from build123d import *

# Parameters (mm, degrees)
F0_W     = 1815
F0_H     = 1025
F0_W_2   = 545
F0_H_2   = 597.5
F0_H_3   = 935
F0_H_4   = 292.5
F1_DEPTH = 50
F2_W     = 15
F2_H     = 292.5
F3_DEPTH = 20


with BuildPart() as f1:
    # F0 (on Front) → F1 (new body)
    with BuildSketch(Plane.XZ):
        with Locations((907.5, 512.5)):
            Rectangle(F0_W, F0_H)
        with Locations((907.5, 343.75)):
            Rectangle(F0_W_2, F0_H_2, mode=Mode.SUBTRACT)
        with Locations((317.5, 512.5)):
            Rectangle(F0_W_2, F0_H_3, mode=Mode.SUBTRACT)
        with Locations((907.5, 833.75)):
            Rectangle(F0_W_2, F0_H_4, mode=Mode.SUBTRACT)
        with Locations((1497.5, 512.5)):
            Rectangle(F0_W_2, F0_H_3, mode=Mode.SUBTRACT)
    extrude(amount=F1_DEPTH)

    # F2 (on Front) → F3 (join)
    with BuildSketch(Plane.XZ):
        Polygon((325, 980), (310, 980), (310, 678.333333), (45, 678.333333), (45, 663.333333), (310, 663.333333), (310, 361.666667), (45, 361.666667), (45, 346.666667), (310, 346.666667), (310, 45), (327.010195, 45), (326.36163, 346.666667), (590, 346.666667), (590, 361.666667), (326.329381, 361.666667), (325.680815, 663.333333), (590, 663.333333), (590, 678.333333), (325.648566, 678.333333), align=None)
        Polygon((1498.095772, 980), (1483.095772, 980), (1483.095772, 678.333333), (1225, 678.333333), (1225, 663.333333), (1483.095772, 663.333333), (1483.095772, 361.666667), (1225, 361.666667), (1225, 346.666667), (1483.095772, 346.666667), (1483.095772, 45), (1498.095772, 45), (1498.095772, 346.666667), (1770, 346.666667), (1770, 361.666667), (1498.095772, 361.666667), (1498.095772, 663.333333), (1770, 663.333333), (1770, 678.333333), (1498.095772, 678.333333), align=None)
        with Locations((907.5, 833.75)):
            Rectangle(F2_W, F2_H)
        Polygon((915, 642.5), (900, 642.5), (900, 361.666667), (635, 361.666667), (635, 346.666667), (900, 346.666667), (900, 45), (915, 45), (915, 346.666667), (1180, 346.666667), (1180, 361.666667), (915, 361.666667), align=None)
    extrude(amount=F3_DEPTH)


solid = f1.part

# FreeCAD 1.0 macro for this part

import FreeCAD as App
import Part
import Sketcher

doc = App.newDocument("Part")
body = doc.addObject("PartDesign::Body", "Body")

# Sketch on XZ plane
sketch1 = body.newObject("Sketcher::SketchObject", "Sketch")
sketch1.AttachmentSupport = (doc.getObject("XZ_Plane"), [""])
sketch1.MapMode = "FlatFace"
sketch1.addGeometry([
    Part.LineSegment(App.Vector(0, 1025, 0), App.Vector(0, 0, 0)),  # 0
    Part.LineSegment(App.Vector(0, 0, 0), App.Vector(1815, 0, 0)),  # 1
    Part.LineSegment(App.Vector(1815, 0, 0), App.Vector(1815, 1025, 0)),  # 2
    Part.LineSegment(App.Vector(1815, 1025, 0), App.Vector(0, 1025, 0)),  # 3
    Part.LineSegment(App.Vector(1180, 45, 0), App.Vector(635, 45, 0)),  # 4
    Part.LineSegment(App.Vector(635, 45, 0), App.Vector(635, 642, 0)),  # 5
    Part.LineSegment(App.Vector(635, 642, 0), App.Vector(1180, 642, 0)),  # 6
    Part.LineSegment(App.Vector(1180, 642, 0), App.Vector(1180, 45, 0)),  # 7
    Part.LineSegment(App.Vector(590, 45, 0), App.Vector(45, 45, 0)),  # 8
    Part.LineSegment(App.Vector(45, 45, 0), App.Vector(45, 980, 0)),  # 9
    Part.LineSegment(App.Vector(45, 980, 0), App.Vector(590, 980, 0)),  # 10
    Part.LineSegment(App.Vector(590, 980, 0), App.Vector(590, 45, 0)),  # 11
    Part.LineSegment(App.Vector(1770, 45, 0), App.Vector(1225, 45, 0)),  # 12
    Part.LineSegment(App.Vector(1225, 45, 0), App.Vector(1225, 980, 0)),  # 13
    Part.LineSegment(App.Vector(1225, 980, 0), App.Vector(1770, 980, 0)),  # 14
    Part.LineSegment(App.Vector(1770, 980, 0), App.Vector(1770, 45, 0)),  # 15
    Part.LineSegment(App.Vector(1180, 688, 0), App.Vector(635, 688, 0)),  # 16
    Part.LineSegment(App.Vector(635, 688, 0), App.Vector(635, 980, 0)),  # 17
    Part.LineSegment(App.Vector(635, 980, 0), App.Vector(1180, 980, 0)),  # 18
    Part.LineSegment(App.Vector(1180, 980, 0), App.Vector(1180, 688, 0)),  # 19
], False)
sketch1.addConstraint([
    Sketcher.Constraint("Coincident", 0, 2, 1, 1),
    Sketcher.Constraint("Coincident", 1, 2, 2, 1),
    Sketcher.Constraint("Coincident", 2, 2, 3, 1),
    Sketcher.Constraint("Coincident", 3, 2, 0, 1),
    Sketcher.Constraint("Coincident", 4, 2, 5, 1),
    Sketcher.Constraint("Coincident", 5, 2, 6, 1),
    Sketcher.Constraint("Coincident", 6, 2, 7, 1),
    Sketcher.Constraint("Coincident", 7, 2, 4, 1),
    Sketcher.Constraint("Coincident", 8, 2, 9, 1),
    Sketcher.Constraint("Coincident", 9, 2, 10, 1),
    Sketcher.Constraint("Coincident", 10, 2, 11, 1),
    Sketcher.Constraint("Coincident", 11, 2, 8, 1),
    Sketcher.Constraint("Coincident", 12, 2, 13, 1),
    Sketcher.Constraint("Coincident", 13, 2, 14, 1),
    Sketcher.Constraint("Coincident", 14, 2, 15, 1),
    Sketcher.Constraint("Coincident", 15, 2, 12, 1),
    Sketcher.Constraint("Coincident", 16, 2, 17, 1),
    Sketcher.Constraint("Coincident", 17, 2, 18, 1),
    Sketcher.Constraint("Coincident", 18, 2, 19, 1),
    Sketcher.Constraint("Coincident", 19, 2, 16, 1),
    Sketcher.Constraint("Vertical", 0),
    Sketcher.Constraint("Horizontal", 1),
    Sketcher.Constraint("Vertical", 2),
    Sketcher.Constraint("Horizontal", 3),
    Sketcher.Constraint("Horizontal", 4),
    Sketcher.Constraint("Vertical", 5),
    Sketcher.Constraint("Horizontal", 6),
    Sketcher.Constraint("Vertical", 7),
    Sketcher.Constraint("Horizontal", 8),
    Sketcher.Constraint("Vertical", 9),
    Sketcher.Constraint("Horizontal", 10),
    Sketcher.Constraint("Vertical", 11),
    Sketcher.Constraint("Horizontal", 12),
    Sketcher.Constraint("Vertical", 13),
    Sketcher.Constraint("Horizontal", 14),
    Sketcher.Constraint("Vertical", 15),
    Sketcher.Constraint("Horizontal", 16),
    Sketcher.Constraint("Vertical", 17),
    Sketcher.Constraint("Horizontal", 18),
    Sketcher.Constraint("Vertical", 19),
    Sketcher.Constraint("Coincident", 0, 2, -1, 1),
    Sketcher.Constraint("Horizontal", 7, 2, 8, 2),
    Sketcher.Constraint("Horizontal", 11, 2, 12, 2),
    Sketcher.Constraint("Horizontal", 10, 2, 13, 2),
    Sketcher.Constraint("Horizontal", 14, 2, 17, 2),
    Sketcher.Constraint("Vertical", 5, 2, 16, 2),
    Sketcher.Constraint("Vertical", 7, 2, 18, 2),
    Sketcher.Constraint("Equal", 6, 8),
    Sketcher.Constraint("Equal", 10, 12),
    Sketcher.Constraint("DistanceX", 1, 1, 1, 2, 1815.0),
    Sketcher.Constraint("DistanceX", 4, 2, 4, 1, 545.0),
    Sketcher.Constraint("DistanceY", 0, 2, 0, 1, 1025.0),
    Sketcher.Constraint("DistanceY", 9, 1, 9, 2, 935.0),
    Sketcher.Constraint("DistanceY", 5, 1, 5, 2, 597.5),
    Sketcher.Constraint("DistanceY", 17, 1, 17, 2, 292.5),
    Sketcher.Constraint("DistanceX", -1, 1, 4, 2, 635.0),
    Sketcher.Constraint("DistanceY", -1, 1, 4, 2, 45.0),
    Sketcher.Constraint("DistanceX", -1, 1, 8, 2, 45.0),
    Sketcher.Constraint("DistanceX", -1, 1, 12, 2, 1225.0),
])
pad1 = body.newObject("PartDesign::Pad", "Pad")
pad1.Profile = sketch1
pad1.Length = 50

# Sketch on XZ plane
sketch2 = body.newObject("Sketcher::SketchObject", "Sketch001")
sketch2.AttachmentSupport = (doc.getObject("XZ_Plane"), [""])
sketch2.MapMode = "FlatFace"
sketch2.addGeometry([
    Part.LineSegment(App.Vector(325, 980, 0), App.Vector(310, 980, 0)),  # 0
    Part.LineSegment(App.Vector(310, 980, 0), App.Vector(310, 678, 0)),  # 1
    Part.LineSegment(App.Vector(310, 678, 0), App.Vector(45, 678, 0)),  # 2
    Part.LineSegment(App.Vector(45, 678, 0), App.Vector(45, 663, 0)),  # 3
    Part.LineSegment(App.Vector(45, 663, 0), App.Vector(310, 663, 0)),  # 4
    Part.LineSegment(App.Vector(310, 663, 0), App.Vector(310, 362, 0)),  # 5
    Part.LineSegment(App.Vector(310, 362, 0), App.Vector(45, 362, 0)),  # 6
    Part.LineSegment(App.Vector(45, 362, 0), App.Vector(45, 347, 0)),  # 7
    Part.LineSegment(App.Vector(45, 347, 0), App.Vector(310, 347, 0)),  # 8
    Part.LineSegment(App.Vector(310, 347, 0), App.Vector(310, 45, 0)),  # 9
    Part.LineSegment(App.Vector(310, 45, 0), App.Vector(327, 45, 0)),  # 10
    Part.LineSegment(App.Vector(327, 45, 0), App.Vector(326, 347, 0)),  # 11
    Part.LineSegment(App.Vector(326, 347, 0), App.Vector(590, 347, 0)),  # 12
    Part.LineSegment(App.Vector(590, 347, 0), App.Vector(590, 362, 0)),  # 13
    Part.LineSegment(App.Vector(590, 362, 0), App.Vector(326, 362, 0)),  # 14
    Part.LineSegment(App.Vector(326, 362, 0), App.Vector(326, 663, 0)),  # 15
    Part.LineSegment(App.Vector(326, 663, 0), App.Vector(590, 663, 0)),  # 16
    Part.LineSegment(App.Vector(590, 663, 0), App.Vector(590, 678, 0)),  # 17
    Part.LineSegment(App.Vector(590, 678, 0), App.Vector(326, 678, 0)),  # 18
    Part.LineSegment(App.Vector(326, 678, 0), App.Vector(325, 980, 0)),  # 19
    Part.LineSegment(App.Vector(1498, 980, 0), App.Vector(1483, 980, 0)),  # 20
    Part.LineSegment(App.Vector(1483, 980, 0), App.Vector(1483, 678, 0)),  # 21
    Part.LineSegment(App.Vector(1483, 678, 0), App.Vector(1225, 678, 0)),  # 22
    Part.LineSegment(App.Vector(1225, 678, 0), App.Vector(1225, 663, 0)),  # 23
    Part.LineSegment(App.Vector(1225, 663, 0), App.Vector(1483, 663, 0)),  # 24
    Part.LineSegment(App.Vector(1483, 663, 0), App.Vector(1483, 362, 0)),  # 25
    Part.LineSegment(App.Vector(1483, 362, 0), App.Vector(1225, 362, 0)),  # 26
    Part.LineSegment(App.Vector(1225, 362, 0), App.Vector(1225, 347, 0)),  # 27
    Part.LineSegment(App.Vector(1225, 347, 0), App.Vector(1483, 347, 0)),  # 28
    Part.LineSegment(App.Vector(1483, 347, 0), App.Vector(1483, 45, 0)),  # 29
    Part.LineSegment(App.Vector(1483, 45, 0), App.Vector(1498, 45, 0)),  # 30
    Part.LineSegment(App.Vector(1498, 45, 0), App.Vector(1498, 347, 0)),  # 31
    Part.LineSegment(App.Vector(1498, 347, 0), App.Vector(1770, 347, 0)),  # 32
    Part.LineSegment(App.Vector(1770, 347, 0), App.Vector(1770, 362, 0)),  # 33
    Part.LineSegment(App.Vector(1770, 362, 0), App.Vector(1498, 362, 0)),  # 34
    Part.LineSegment(App.Vector(1498, 362, 0), App.Vector(1498, 663, 0)),  # 35
    Part.LineSegment(App.Vector(1498, 663, 0), App.Vector(1770, 663, 0)),  # 36
    Part.LineSegment(App.Vector(1770, 663, 0), App.Vector(1770, 678, 0)),  # 37
    Part.LineSegment(App.Vector(1770, 678, 0), App.Vector(1498, 678, 0)),  # 38
    Part.LineSegment(App.Vector(1498, 678, 0), App.Vector(1498, 980, 0)),  # 39
    Part.LineSegment(App.Vector(900, 980, 0), App.Vector(900, 688, 0)),  # 40
    Part.LineSegment(App.Vector(900, 688, 0), App.Vector(915, 688, 0)),  # 41
    Part.LineSegment(App.Vector(915, 688, 0), App.Vector(915, 980, 0)),  # 42
    Part.LineSegment(App.Vector(915, 980, 0), App.Vector(900, 980, 0)),  # 43
    Part.LineSegment(App.Vector(915, 642, 0), App.Vector(900, 642, 0)),  # 44
    Part.LineSegment(App.Vector(900, 642, 0), App.Vector(900, 362, 0)),  # 45
    Part.LineSegment(App.Vector(900, 362, 0), App.Vector(635, 362, 0)),  # 46
    Part.LineSegment(App.Vector(635, 362, 0), App.Vector(635, 347, 0)),  # 47
    Part.LineSegment(App.Vector(635, 347, 0), App.Vector(900, 347, 0)),  # 48
    Part.LineSegment(App.Vector(900, 347, 0), App.Vector(900, 45, 0)),  # 49
    Part.LineSegment(App.Vector(900, 45, 0), App.Vector(915, 45, 0)),  # 50
    Part.LineSegment(App.Vector(915, 45, 0), App.Vector(915, 347, 0)),  # 51
    Part.LineSegment(App.Vector(915, 347, 0), App.Vector(1180, 347, 0)),  # 52
    Part.LineSegment(App.Vector(1180, 347, 0), App.Vector(1180, 362, 0)),  # 53
    Part.LineSegment(App.Vector(1180, 362, 0), App.Vector(915, 362, 0)),  # 54
    Part.LineSegment(App.Vector(915, 362, 0), App.Vector(915, 642, 0)),  # 55
], False)
sketch2.addConstraint([
    Sketcher.Constraint("Coincident", 0, 2, 1, 1),
    Sketcher.Constraint("Coincident", 1, 2, 2, 1),
    Sketcher.Constraint("Coincident", 2, 2, 3, 1),
    Sketcher.Constraint("Coincident", 3, 2, 4, 1),
    Sketcher.Constraint("Coincident", 4, 2, 5, 1),
    Sketcher.Constraint("Coincident", 5, 2, 6, 1),
    Sketcher.Constraint("Coincident", 6, 2, 7, 1),
    Sketcher.Constraint("Coincident", 7, 2, 8, 1),
    Sketcher.Constraint("Coincident", 8, 2, 9, 1),
    Sketcher.Constraint("Coincident", 9, 2, 10, 1),
    Sketcher.Constraint("Coincident", 10, 2, 11, 1),
    Sketcher.Constraint("Coincident", 11, 2, 12, 1),
    Sketcher.Constraint("Coincident", 12, 2, 13, 1),
    Sketcher.Constraint("Coincident", 13, 2, 14, 1),
    Sketcher.Constraint("Coincident", 14, 2, 15, 1),
    Sketcher.Constraint("Coincident", 15, 2, 16, 1),
    Sketcher.Constraint("Coincident", 16, 2, 17, 1),
    Sketcher.Constraint("Coincident", 17, 2, 18, 1),
    Sketcher.Constraint("Coincident", 18, 2, 19, 1),
    Sketcher.Constraint("Coincident", 19, 2, 0, 1),
    Sketcher.Constraint("Coincident", 20, 2, 21, 1),
    Sketcher.Constraint("Coincident", 21, 2, 22, 1),
    Sketcher.Constraint("Coincident", 22, 2, 23, 1),
    Sketcher.Constraint("Coincident", 23, 2, 24, 1),
    Sketcher.Constraint("Coincident", 24, 2, 25, 1),
    Sketcher.Constraint("Coincident", 25, 2, 26, 1),
    Sketcher.Constraint("Coincident", 26, 2, 27, 1),
    Sketcher.Constraint("Coincident", 27, 2, 28, 1),
    Sketcher.Constraint("Coincident", 28, 2, 29, 1),
    Sketcher.Constraint("Coincident", 29, 2, 30, 1),
    Sketcher.Constraint("Coincident", 30, 2, 31, 1),
    Sketcher.Constraint("Coincident", 31, 2, 32, 1),
    Sketcher.Constraint("Coincident", 32, 2, 33, 1),
    Sketcher.Constraint("Coincident", 33, 2, 34, 1),
    Sketcher.Constraint("Coincident", 34, 2, 35, 1),
    Sketcher.Constraint("Coincident", 35, 2, 36, 1),
    Sketcher.Constraint("Coincident", 36, 2, 37, 1),
    Sketcher.Constraint("Coincident", 37, 2, 38, 1),
    Sketcher.Constraint("Coincident", 38, 2, 39, 1),
    Sketcher.Constraint("Coincident", 39, 2, 20, 1),
    Sketcher.Constraint("Coincident", 40, 2, 41, 1),
    Sketcher.Constraint("Coincident", 41, 2, 42, 1),
    Sketcher.Constraint("Coincident", 42, 2, 43, 1),
    Sketcher.Constraint("Coincident", 43, 2, 40, 1),
    Sketcher.Constraint("Coincident", 44, 2, 45, 1),
    Sketcher.Constraint("Coincident", 45, 2, 46, 1),
    Sketcher.Constraint("Coincident", 46, 2, 47, 1),
    Sketcher.Constraint("Coincident", 47, 2, 48, 1),
    Sketcher.Constraint("Coincident", 48, 2, 49, 1),
    Sketcher.Constraint("Coincident", 49, 2, 50, 1),
    Sketcher.Constraint("Coincident", 50, 2, 51, 1),
    Sketcher.Constraint("Coincident", 51, 2, 52, 1),
    Sketcher.Constraint("Coincident", 52, 2, 53, 1),
    Sketcher.Constraint("Coincident", 53, 2, 54, 1),
    Sketcher.Constraint("Coincident", 54, 2, 55, 1),
    Sketcher.Constraint("Coincident", 55, 2, 44, 1),
    Sketcher.Constraint("Horizontal", 0),
    Sketcher.Constraint("Vertical", 1),
    Sketcher.Constraint("Horizontal", 2),
    Sketcher.Constraint("Vertical", 3),
    Sketcher.Constraint("Horizontal", 4),
    Sketcher.Constraint("Vertical", 5),
    Sketcher.Constraint("Horizontal", 6),
    Sketcher.Constraint("Vertical", 7),
    Sketcher.Constraint("Horizontal", 8),
    Sketcher.Constraint("Vertical", 9),
    Sketcher.Constraint("Horizontal", 10),
    Sketcher.Constraint("Horizontal", 12),
    Sketcher.Constraint("Vertical", 13),
    Sketcher.Constraint("Horizontal", 14),
    Sketcher.Constraint("Horizontal", 16),
    Sketcher.Constraint("Vertical", 17),
    Sketcher.Constraint("Horizontal", 18),
    Sketcher.Constraint("Horizontal", 20),
    Sketcher.Constraint("Vertical", 21),
    Sketcher.Constraint("Horizontal", 22),
    Sketcher.Constraint("Vertical", 23),
    Sketcher.Constraint("Horizontal", 24),
    Sketcher.Constraint("Vertical", 25),
    Sketcher.Constraint("Horizontal", 26),
    Sketcher.Constraint("Vertical", 27),
    Sketcher.Constraint("Horizontal", 28),
    Sketcher.Constraint("Vertical", 29),
    Sketcher.Constraint("Horizontal", 30),
    Sketcher.Constraint("Vertical", 31),
    Sketcher.Constraint("Horizontal", 32),
    Sketcher.Constraint("Vertical", 33),
    Sketcher.Constraint("Horizontal", 34),
    Sketcher.Constraint("Vertical", 35),
    Sketcher.Constraint("Horizontal", 36),
    Sketcher.Constraint("Vertical", 37),
    Sketcher.Constraint("Horizontal", 38),
    Sketcher.Constraint("Vertical", 39),
    Sketcher.Constraint("Vertical", 40),
    Sketcher.Constraint("Horizontal", 41),
    Sketcher.Constraint("Vertical", 42),
    Sketcher.Constraint("Horizontal", 43),
    Sketcher.Constraint("Horizontal", 44),
    Sketcher.Constraint("Vertical", 45),
    Sketcher.Constraint("Horizontal", 46),
    Sketcher.Constraint("Vertical", 47),
    Sketcher.Constraint("Horizontal", 48),
    Sketcher.Constraint("Vertical", 49),
    Sketcher.Constraint("Horizontal", 50),
    Sketcher.Constraint("Vertical", 51),
    Sketcher.Constraint("Horizontal", 52),
    Sketcher.Constraint("Vertical", 53),
    Sketcher.Constraint("Horizontal", 54),
    Sketcher.Constraint("Vertical", 55),
    Sketcher.Constraint("Parallel", 11, 15),
    Sketcher.Constraint("Parallel", 15, 19),
    Sketcher.Constraint("Horizontal", 8, 2, 11, 2),
    Sketcher.Constraint("Horizontal", 6, 2, 13, 2),
    Sketcher.Constraint("Horizontal", 4, 2, 15, 2),
    Sketcher.Constraint("Horizontal", 2, 2, 17, 2),
    Sketcher.Constraint("Horizontal", 19, 2, 20, 2),
    Sketcher.Constraint("Horizontal", 18, 2, 21, 2),
    Sketcher.Constraint("Horizontal", 16, 2, 23, 2),
    Sketcher.Constraint("Horizontal", 14, 2, 25, 2),
    Sketcher.Constraint("Horizontal", 12, 2, 27, 2),
    Sketcher.Constraint("Horizontal", 10, 2, 29, 2),
    Sketcher.Constraint("Horizontal", 28, 2, 31, 2),
    Sketcher.Constraint("Horizontal", 26, 2, 33, 2),
    Sketcher.Constraint("Horizontal", 24, 2, 35, 2),
    Sketcher.Constraint("Horizontal", 22, 2, 37, 2),
    Sketcher.Constraint("Horizontal", 39, 2, 42, 2),
    Sketcher.Constraint("Horizontal", 34, 2, 45, 2),
    Sketcher.Constraint("Horizontal", 32, 2, 47, 2),
    Sketcher.Constraint("Horizontal", 30, 2, 49, 2),
    Sketcher.Constraint("Horizontal", 48, 2, 51, 2),
    Sketcher.Constraint("Horizontal", 46, 2, 53, 2),
    Sketcher.Constraint("Vertical", 1, 2, 4, 2),
    Sketcher.Constraint("Vertical", 3, 2, 6, 2),
    Sketcher.Constraint("Vertical", 5, 2, 8, 2),
    Sketcher.Constraint("Vertical", 13, 2, 16, 2),
    Sketcher.Constraint("Vertical", 21, 2, 24, 2),
    Sketcher.Constraint("Vertical", 23, 2, 26, 2),
    Sketcher.Constraint("Vertical", 25, 2, 28, 2),
    Sketcher.Constraint("Vertical", 31, 2, 34, 2),
    Sketcher.Constraint("Vertical", 33, 2, 36, 2),
    Sketcher.Constraint("Vertical", 35, 2, 38, 2),
    Sketcher.Constraint("Vertical", 43, 2, 44, 2),
    Sketcher.Constraint("Vertical", 45, 2, 48, 2),
    Sketcher.Constraint("Vertical", 42, 2, 50, 2),
    Sketcher.Constraint("Vertical", 51, 2, 54, 2),
    Sketcher.Constraint("Equal", 0, 20),
    Sketcher.Constraint("Equal", 30, 41),
    Sketcher.Constraint("Equal", 8, 46),
    Sketcher.Constraint("Equal", 48, 52),
    Sketcher.Constraint("Equal", 50, 3),
    Sketcher.Constraint("Equal", 1, 5),
    Sketcher.Constraint("Equal", 3, 7),
    Sketcher.Constraint("Equal", 5, 9),
    Sketcher.Constraint("DistanceX", 0, 2, 0, 1, 15.0),
    Sketcher.Constraint("DistanceX", 2, 2, 2, 1, 265.0),
    Sketcher.Constraint("DistanceY", 40, 2, 40, 1, 292.5),
    Sketcher.Constraint("DistanceX", -1, 1, 0, 2, 310.0),
    Sketcher.Constraint("DistanceY", -1, 1, 0, 2, 980.0),
    Sketcher.Constraint("DistanceY", -1, 1, 9, 2, 45.0),
    Sketcher.Constraint("DistanceX", -1, 1, 12, 2, 590.0),
    Sketcher.Constraint("DistanceX", -1, 1, 22, 2, 1225.0),
    Sketcher.Constraint("DistanceX", -1, 1, 32, 2, 1770.0),
    Sketcher.Constraint("DistanceX", -1, 1, 40, 2, 900.0),
    Sketcher.Constraint("DistanceY", 44, 2, 40, 2, 45.0),
    Sketcher.Constraint("DistanceX", 12, 1, 12, 2, 263.63837),
    Sketcher.Constraint("DistanceX", 14, 2, 14, 1, 263.670619),
    Sketcher.Constraint("DistanceX", 22, 2, 22, 1, 258.095772),
    Sketcher.Constraint("DistanceX", 10, 1, 10, 2, 17.010195),
])
pad2 = body.newObject("PartDesign::Pad", "Pad001")
pad2.Profile = sketch2
pad2.Length = 20

doc.recompute()
